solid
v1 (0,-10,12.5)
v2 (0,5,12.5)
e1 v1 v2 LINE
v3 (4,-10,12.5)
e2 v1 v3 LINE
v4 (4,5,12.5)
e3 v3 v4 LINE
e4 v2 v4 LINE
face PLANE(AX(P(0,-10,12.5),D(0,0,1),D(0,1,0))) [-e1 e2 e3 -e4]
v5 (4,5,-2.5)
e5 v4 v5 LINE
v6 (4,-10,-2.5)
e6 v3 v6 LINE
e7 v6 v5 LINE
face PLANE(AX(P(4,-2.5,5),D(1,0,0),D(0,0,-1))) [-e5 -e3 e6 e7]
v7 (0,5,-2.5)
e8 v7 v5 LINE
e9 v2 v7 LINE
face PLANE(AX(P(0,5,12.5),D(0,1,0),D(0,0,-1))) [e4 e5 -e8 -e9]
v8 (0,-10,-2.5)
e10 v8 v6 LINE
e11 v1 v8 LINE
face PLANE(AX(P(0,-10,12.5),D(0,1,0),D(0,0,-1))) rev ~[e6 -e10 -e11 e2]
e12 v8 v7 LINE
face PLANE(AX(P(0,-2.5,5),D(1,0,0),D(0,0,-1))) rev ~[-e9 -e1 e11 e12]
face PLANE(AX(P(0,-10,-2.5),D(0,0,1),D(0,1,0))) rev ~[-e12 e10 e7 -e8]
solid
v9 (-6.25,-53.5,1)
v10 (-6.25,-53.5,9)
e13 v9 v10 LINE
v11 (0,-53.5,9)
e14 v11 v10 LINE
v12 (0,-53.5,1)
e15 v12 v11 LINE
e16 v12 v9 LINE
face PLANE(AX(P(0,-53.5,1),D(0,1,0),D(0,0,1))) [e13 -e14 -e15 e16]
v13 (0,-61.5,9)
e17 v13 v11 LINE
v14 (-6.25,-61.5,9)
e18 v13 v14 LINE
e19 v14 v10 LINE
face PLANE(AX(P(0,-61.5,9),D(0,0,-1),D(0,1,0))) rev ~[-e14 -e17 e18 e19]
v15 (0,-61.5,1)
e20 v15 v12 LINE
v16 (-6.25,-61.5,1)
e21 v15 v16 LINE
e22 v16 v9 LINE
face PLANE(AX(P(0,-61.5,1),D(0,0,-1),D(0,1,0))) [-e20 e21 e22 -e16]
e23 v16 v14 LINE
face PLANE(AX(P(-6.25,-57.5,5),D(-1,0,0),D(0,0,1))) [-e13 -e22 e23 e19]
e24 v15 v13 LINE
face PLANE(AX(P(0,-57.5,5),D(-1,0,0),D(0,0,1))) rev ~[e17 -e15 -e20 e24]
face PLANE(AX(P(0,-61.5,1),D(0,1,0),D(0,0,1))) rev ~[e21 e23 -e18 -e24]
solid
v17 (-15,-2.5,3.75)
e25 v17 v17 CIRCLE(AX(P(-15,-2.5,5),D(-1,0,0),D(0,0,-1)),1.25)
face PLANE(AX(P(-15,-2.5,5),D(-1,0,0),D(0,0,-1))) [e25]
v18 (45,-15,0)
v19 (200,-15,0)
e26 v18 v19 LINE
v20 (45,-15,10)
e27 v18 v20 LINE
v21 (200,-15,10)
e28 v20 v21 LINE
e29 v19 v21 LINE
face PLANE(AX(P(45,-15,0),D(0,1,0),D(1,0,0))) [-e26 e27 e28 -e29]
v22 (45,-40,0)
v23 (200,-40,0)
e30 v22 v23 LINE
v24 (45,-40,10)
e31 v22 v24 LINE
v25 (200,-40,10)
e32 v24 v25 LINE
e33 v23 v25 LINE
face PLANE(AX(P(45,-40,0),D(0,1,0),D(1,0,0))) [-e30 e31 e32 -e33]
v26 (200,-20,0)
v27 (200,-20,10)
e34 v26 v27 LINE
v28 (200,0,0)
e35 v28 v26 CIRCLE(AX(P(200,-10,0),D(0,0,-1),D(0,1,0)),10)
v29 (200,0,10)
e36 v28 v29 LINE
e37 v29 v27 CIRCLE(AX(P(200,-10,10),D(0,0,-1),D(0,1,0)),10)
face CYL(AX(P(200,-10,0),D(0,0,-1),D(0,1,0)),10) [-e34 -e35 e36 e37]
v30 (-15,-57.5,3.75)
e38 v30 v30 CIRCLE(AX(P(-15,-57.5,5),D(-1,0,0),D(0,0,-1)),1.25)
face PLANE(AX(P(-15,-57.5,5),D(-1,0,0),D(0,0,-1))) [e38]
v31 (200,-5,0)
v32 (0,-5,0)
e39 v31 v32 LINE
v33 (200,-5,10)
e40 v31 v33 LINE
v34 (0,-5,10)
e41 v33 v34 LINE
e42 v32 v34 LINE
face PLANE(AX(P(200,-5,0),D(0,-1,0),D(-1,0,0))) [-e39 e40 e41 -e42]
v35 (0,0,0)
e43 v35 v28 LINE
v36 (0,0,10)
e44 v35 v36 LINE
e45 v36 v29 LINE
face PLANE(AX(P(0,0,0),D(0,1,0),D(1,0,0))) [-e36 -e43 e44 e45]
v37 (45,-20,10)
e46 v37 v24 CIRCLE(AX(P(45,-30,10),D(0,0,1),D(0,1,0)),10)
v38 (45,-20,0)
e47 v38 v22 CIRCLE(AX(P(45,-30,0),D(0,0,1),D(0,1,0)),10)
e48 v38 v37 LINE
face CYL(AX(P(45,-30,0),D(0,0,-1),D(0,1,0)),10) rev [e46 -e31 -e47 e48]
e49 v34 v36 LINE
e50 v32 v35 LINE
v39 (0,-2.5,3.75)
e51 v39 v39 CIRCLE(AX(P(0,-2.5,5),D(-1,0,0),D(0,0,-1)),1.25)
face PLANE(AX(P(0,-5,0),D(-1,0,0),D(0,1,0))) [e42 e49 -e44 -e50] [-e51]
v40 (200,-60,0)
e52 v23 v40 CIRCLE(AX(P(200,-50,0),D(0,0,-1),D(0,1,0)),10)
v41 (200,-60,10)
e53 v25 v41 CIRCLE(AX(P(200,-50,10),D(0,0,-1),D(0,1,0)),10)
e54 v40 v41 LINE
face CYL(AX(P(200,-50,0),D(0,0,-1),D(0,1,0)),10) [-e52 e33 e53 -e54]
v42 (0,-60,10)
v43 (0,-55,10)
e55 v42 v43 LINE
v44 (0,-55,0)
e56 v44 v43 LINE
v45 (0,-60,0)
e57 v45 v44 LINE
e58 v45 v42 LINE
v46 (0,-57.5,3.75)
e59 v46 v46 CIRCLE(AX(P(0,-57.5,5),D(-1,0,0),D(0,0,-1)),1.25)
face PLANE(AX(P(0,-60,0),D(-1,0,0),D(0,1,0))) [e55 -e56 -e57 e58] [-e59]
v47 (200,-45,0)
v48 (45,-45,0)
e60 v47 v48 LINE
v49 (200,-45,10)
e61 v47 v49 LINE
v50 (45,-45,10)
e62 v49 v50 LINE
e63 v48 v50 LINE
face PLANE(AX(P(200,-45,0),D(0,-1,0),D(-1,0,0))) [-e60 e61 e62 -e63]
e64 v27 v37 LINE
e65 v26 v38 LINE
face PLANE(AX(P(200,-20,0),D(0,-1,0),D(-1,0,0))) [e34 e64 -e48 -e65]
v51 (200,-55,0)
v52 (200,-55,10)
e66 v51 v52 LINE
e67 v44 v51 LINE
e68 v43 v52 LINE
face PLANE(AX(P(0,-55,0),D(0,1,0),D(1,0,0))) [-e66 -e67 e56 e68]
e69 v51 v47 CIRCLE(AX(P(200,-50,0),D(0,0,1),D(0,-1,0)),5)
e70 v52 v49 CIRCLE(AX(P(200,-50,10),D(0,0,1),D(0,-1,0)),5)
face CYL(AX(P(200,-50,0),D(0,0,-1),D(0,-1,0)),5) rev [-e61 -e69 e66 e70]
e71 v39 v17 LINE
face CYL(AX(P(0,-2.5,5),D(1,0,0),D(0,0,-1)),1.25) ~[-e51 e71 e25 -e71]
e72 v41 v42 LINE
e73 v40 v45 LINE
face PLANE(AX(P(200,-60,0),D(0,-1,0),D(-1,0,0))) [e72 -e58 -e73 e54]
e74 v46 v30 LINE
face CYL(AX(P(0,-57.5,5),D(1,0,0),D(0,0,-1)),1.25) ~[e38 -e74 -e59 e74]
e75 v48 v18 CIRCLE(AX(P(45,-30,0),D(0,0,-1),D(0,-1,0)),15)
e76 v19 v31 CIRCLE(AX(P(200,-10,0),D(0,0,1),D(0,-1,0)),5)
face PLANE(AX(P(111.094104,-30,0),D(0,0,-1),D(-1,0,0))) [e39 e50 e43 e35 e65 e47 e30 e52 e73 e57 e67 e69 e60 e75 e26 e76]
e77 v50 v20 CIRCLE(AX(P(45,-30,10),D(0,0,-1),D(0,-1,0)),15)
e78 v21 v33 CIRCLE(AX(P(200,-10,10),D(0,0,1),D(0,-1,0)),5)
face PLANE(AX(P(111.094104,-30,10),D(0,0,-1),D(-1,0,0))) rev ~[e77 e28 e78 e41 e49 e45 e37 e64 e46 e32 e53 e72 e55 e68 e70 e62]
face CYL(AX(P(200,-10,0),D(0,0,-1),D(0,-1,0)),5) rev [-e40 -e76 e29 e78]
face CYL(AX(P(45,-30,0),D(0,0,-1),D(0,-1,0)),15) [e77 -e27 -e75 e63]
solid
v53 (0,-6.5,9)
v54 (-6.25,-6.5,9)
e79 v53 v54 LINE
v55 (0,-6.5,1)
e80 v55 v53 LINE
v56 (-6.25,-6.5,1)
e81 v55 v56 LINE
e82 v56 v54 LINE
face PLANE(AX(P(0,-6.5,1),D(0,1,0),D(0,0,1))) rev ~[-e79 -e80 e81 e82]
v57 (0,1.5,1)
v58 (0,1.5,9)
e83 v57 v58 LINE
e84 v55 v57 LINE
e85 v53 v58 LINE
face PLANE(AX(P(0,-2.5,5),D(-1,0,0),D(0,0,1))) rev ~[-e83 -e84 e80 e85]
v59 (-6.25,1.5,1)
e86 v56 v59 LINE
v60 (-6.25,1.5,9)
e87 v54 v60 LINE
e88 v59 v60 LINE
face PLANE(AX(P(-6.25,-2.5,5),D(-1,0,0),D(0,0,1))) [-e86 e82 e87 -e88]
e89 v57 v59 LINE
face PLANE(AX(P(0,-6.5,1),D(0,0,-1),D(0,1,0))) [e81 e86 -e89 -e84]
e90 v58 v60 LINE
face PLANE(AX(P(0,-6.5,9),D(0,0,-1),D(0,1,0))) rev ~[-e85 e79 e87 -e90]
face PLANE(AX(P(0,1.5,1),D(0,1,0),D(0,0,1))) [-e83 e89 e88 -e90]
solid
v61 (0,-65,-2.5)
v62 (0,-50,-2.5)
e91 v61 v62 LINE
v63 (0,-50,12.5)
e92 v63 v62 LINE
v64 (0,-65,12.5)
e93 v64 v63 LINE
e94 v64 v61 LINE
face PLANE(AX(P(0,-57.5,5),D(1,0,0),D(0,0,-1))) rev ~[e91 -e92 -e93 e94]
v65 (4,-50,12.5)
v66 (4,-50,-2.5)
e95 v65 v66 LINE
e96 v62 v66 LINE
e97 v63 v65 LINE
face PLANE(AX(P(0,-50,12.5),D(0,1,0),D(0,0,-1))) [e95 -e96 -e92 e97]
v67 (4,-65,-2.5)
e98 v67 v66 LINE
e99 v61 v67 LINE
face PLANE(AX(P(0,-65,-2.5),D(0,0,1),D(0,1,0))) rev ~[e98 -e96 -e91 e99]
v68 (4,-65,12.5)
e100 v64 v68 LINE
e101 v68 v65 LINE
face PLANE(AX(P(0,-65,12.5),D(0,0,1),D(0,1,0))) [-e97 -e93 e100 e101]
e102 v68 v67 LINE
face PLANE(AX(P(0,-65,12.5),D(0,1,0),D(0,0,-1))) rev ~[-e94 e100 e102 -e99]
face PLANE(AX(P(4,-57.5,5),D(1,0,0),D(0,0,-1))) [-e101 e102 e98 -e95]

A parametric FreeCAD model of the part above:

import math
import FreeCAD as App
import Part
import Sketcher


def add_polygon(sketch, points):
    """Adds a closed chain of lines whose ends are joined by coincident constraints."""
    first, n = sketch.GeometryCount, len(points)
    for a, b in zip(points, points[1:] + points[:1]):
        sketch.addGeometry(Part.LineSegment(App.Vector(*a, 0), App.Vector(*b, 0)), False)
    for i in range(n):
        sketch.addConstraint(Sketcher.Constraint("Coincident", first + i, 2, first + (i + 1) % n, 1))

doc = App.newDocument("Part")
body = doc.addObject("PartDesign::Body", "Body")

# Sketch on XY plane
sketch1 = body.newObject("Sketcher::SketchObject", "Sketch")
sketch1.AttachmentSupport = (doc.getObject("XY_Plane"), [""])
sketch1.MapMode = "FlatFace"
sketch1.addGeometry([
    Part.LineSegment(App.Vector(200, 0, 0), App.Vector(0, 0, 0)),  # 0
    Part.LineSegment(App.Vector(0, 0, 0), App.Vector(0, -5, 0)),  # 1
    Part.LineSegment(App.Vector(0, -5, 0), App.Vector(200, -5, 0)),  # 2
    Part.ArcOfCircle(Part.Circle(App.Vector(200, -10, 0), App.Vector(0, 0, 1), 5), math.radians(-90), math.radians(90)),  # 3
    Part.LineSegment(App.Vector(200, -15, 0), App.Vector(45, -15, 0)),  # 4
    Part.ArcOfCircle(Part.Circle(App.Vector(45, -30, 0), App.Vector(0, 0, 1), 15), math.radians(90), math.radians(270)),  # 5
    Part.LineSegment(App.Vector(45, -45, 0), App.Vector(200, -45, 0)),  # 6
    Part.ArcOfCircle(Part.Circle(App.Vector(200, -50, 0), App.Vector(0, 0, 1), 5), math.radians(-90), math.radians(90)),  # 7
    Part.LineSegment(App.Vector(200, -55, 0), App.Vector(0, -55, 0)),  # 8
    Part.LineSegment(App.Vector(0, -55, 0), App.Vector(0, -60, 0)),  # 9
    Part.LineSegment(App.Vector(0, -60, 0), App.Vector(200, -60, 0)),  # 10
    Part.ArcOfCircle(Part.Circle(App.Vector(200, -50, 0), App.Vector(0, 0, 1), 10), math.radians(-90), math.radians(90)),  # 11
    Part.LineSegment(App.Vector(200, -40, 0), App.Vector(45, -40, 0)),  # 12
    Part.ArcOfCircle(Part.Circle(App.Vector(45, -30, 0), App.Vector(0, 0, 1), 10), math.radians(90), math.radians(270)),  # 13
    Part.LineSegment(App.Vector(45, -20, 0), App.Vector(200, -20, 0)),  # 14
    Part.ArcOfCircle(Part.Circle(App.Vector(200, -10, 0), App.Vector(0, 0, 1), 10), math.radians(-90), math.radians(90)),  # 15
], False)
sketch1.addConstraint([
    Sketcher.Constraint("Coincident", 0, 2, 1, 1),
    Sketcher.Constraint("Coincident", 1, 2, 2, 1),
    Sketcher.Constraint("Tangent", 2, 2, 3, 2),
    Sketcher.Constraint("Tangent", 3, 1, 4, 1),
    Sketcher.Constraint("Tangent", 4, 2, 5, 1),
    Sketcher.Constraint("Tangent", 5, 2, 6, 1),
    Sketcher.Constraint("Tangent", 6, 2, 7, 2),
    Sketcher.Constraint("Tangent", 7, 1, 8, 1),
    Sketcher.Constraint("Coincident", 8, 2, 9, 1),
    Sketcher.Constraint("Coincident", 9, 2, 10, 1),
    Sketcher.Constraint("Tangent", 10, 2, 11, 1),
    Sketcher.Constraint("Tangent", 11, 2, 12, 1),
    Sketcher.Constraint("Tangent", 12, 2, 13, 2),
    Sketcher.Constraint("Tangent", 13, 1, 14, 1),
    Sketcher.Constraint("Tangent", 14, 2, 15, 1),
    Sketcher.Constraint("Tangent", 15, 2, 0, 1),
    Sketcher.Constraint("Horizontal", 0),
    Sketcher.Constraint("Vertical", 1),
    Sketcher.Constraint("Horizontal", 2),
    Sketcher.Constraint("Horizontal", 4),
    Sketcher.Constraint("Horizontal", 6),
    Sketcher.Constraint("Horizontal", 8),
    Sketcher.Constraint("Vertical", 9),
    Sketcher.Constraint("Horizontal", 10),
    Sketcher.Constraint("Horizontal", 12),
    Sketcher.Constraint("Horizontal", 14),
    Sketcher.Constraint("Coincident", 0, 2, -1, 1),
    Sketcher.Constraint("Coincident", 11, 3, 7, 3),
    Sketcher.Constraint("Coincident", 13, 3, 5, 3),
    Sketcher.Constraint("Coincident", 15, 3, 3, 3),
    Sketcher.Constraint("Equal", 3, 7),
    Sketcher.Constraint("Equal", 11, 13),
    Sketcher.Constraint("PointOnObject", 8, 2, -2),
    Sketcher.Constraint("Vertical", 3, 3, 7, 3),
    Sketcher.Constraint("Radius", 3, 5.0),
    Sketcher.Constraint("Radius", 5, 15.0),
    Sketcher.Constraint("DistanceX", 0, 2, 0, 1, 200.0),
    Sketcher.Constraint("DistanceX", 4, 2, 4, 1, 155.0),
])
pad1 = body.newObject("PartDesign::Pad", "Pad")
pad1.Profile = sketch1
pad1.Length = 10

# Sketch on YZ plane
sketch2 = body.newObject("Sketcher::SketchObject", "Sketch001")
sketch2.AttachmentSupport = (doc.getObject("YZ_Plane"), [""])
sketch2.MapMode = "FlatFace"
sketch2.addGeometry(Part.Circle(App.Vector(-2.5, 5, 0), App.Vector(0, 0, 1), 1.2), False)
sketch2.addConstraint([
    Sketcher.Constraint("Diameter", 0, 2.5),
    Sketcher.Constraint("DistanceY", -1, 1, 0, 3, 5.0),
    Sketcher.Constraint("DistanceX", 0, 3, -1, 1, 2.5),
])
pad2 = body.newObject("PartDesign::Pad", "Pad001")
pad2.Profile = sketch2
pad2.Length = 15
pad2.Reversed = True

# Sketch on YZ plane
sketch3 = body.newObject("Sketcher::SketchObject", "Sketch002")
sketch3.AttachmentSupport = (doc.getObject("YZ_Plane"), [""])
sketch3.MapMode = "FlatFace"
sketch3.addGeometry(Part.Circle(App.Vector(-57.5, 5, 0), App.Vector(0, 0, 1), 1.2), False)
sketch3.addConstraint([
    Sketcher.Constraint("Diameter", 0, 2.5),
    Sketcher.Constraint("DistanceY", -1, 1, 0, 3, 5.0),
    Sketcher.Constraint("DistanceX", 0, 3, -1, 1, 57.5),
])
pad3 = body.newObject("PartDesign::Pad", "Pad002")
pad3.Profile = sketch3
pad3.Length = 15
pad3.Reversed = True
body2 = doc.addObject("PartDesign::Body", "Body001")

# Sketch on YZ plane
sketch4 = body2.newObject("Sketcher::SketchObject", "Sketch003")
sketch4.AttachmentSupport = (doc.getObject("YZ_Plane001"), [""])
sketch4.MapMode = "FlatFace"
add_polygon(sketch4, [(-50, 12), (-65, 12), (-65, -2), (-50, -2)])  # lines 0-3
sketch4.addConstraint([
    Sketcher.Constraint("Horizontal", 0),
    Sketcher.Constraint("Vertical", 1),
    Sketcher.Constraint("Horizontal", 2),
    Sketcher.Constraint("Vertical", 3),
    Sketcher.Constraint("Equal", 2, 1),
    Sketcher.Constraint("DistanceX", 0, 2, 0, 1, 15.0),
    Sketcher.Constraint("DistanceX", 0, 2, -1, 1, 65.0),
    Sketcher.Constraint("DistanceY", -1, 1, 0, 2, 12.5),
])
pad4 = body2.newObject("PartDesign::Pad", "Pad003")
pad4.Profile = sketch4
pad4.Length = 4
body3 = doc.addObject("PartDesign::Body", "Body002")

# Sketch on YZ plane
sketch5 = body3.newObject("Sketcher::SketchObject", "Sketch004")
sketch5.AttachmentSupport = (doc.getObject("YZ_Plane002"), [""])
sketch5.MapMode = "FlatFace"
add_polygon(sketch5, [(5, 12), (-10, 12), (-10, -2), (5, -2)])  # lines 0-3
sketch5.addConstraint([
    Sketcher.Constraint("Horizontal", 0),
    Sketcher.Constraint("Vertical", 1),
    Sketcher.Constraint("Horizontal", 2),
    Sketcher.Constraint("Vertical", 3),
    Sketcher.Constraint("Equal", 2, 1),
    Sketcher.Constraint("DistanceX", 0, 2, 0, 1, 15.0),
    Sketcher.Constraint("DistanceX", 0, 2, -1, 1, 10.0),
    Sketcher.Constraint("DistanceY", -1, 1, 0, 2, 12.5),
])
pad5 = body3.newObject("PartDesign::Pad", "Pad004")
pad5.Profile = sketch5
pad5.Length = 4
body4 = doc.addObject("PartDesign::Body", "Body003")

# Sketch on YZ plane
sketch6 = body4.newObject("Sketcher::SketchObject", "Sketch005")
sketch6.AttachmentSupport = (doc.getObject("YZ_Plane003"), [""])
sketch6.MapMode = "FlatFace"
add_polygon(sketch6, [(-54, 1), (-62, 1), (-62, 9), (-54, 9)])  # lines 0-3
sketch6.addConstraint([
    Sketcher.Constraint("Horizontal", 0),
    Sketcher.Constraint("Vertical", 1),
    Sketcher.Constraint("Horizontal", 2),
    Sketcher.Constraint("Vertical", 3),
    Sketcher.Constraint("Equal", 2, 1),
    Sketcher.Constraint("DistanceX", 0, 2, 0, 1, 8.0),
    Sketcher.Constraint("DistanceY", -1, 1, 0, 2, 1.0),
    Sketcher.Constraint("DistanceX", 0, 2, -1, 1, 61.5),
])
pad6 = body4.newObject("PartDesign::Pad", "Pad005")
pad6.Profile = sketch6
pad6.Length = 6.25
pad6.Reversed = True
body5 = doc.addObject("PartDesign::Body", "Body004")

# Sketch on YZ plane
sketch7 = body5.newObject("Sketcher::SketchObject", "Sketch006")
sketch7.AttachmentSupport = (doc.getObject("YZ_Plane004"), [""])
sketch7.MapMode = "FlatFace"
add_polygon(sketch7, [(2, 1), (-6, 1), (-6, 9), (2, 9)])  # lines 0-3
sketch7.addConstraint([
    Sketcher.Constraint("Horizontal", 0),
    Sketcher.Constraint("Vertical", 1),
    Sketcher.Constraint("Horizontal", 2),
    Sketcher.Constraint("Vertical", 3),
    Sketcher.Constraint("Equal", 2, 1),
    Sketcher.Constraint("DistanceX", 0, 2, 0, 1, 8.0),
    Sketcher.Constraint("DistanceY", -1, 1, 0, 2, 1.0),
    Sketcher.Constraint("DistanceX", 0, 2, -1, 1, 6.5),
])
pad7 = body5.newObject("PartDesign::Pad", "Pad006")
pad7.Profile = sketch7
pad7.Length = 6.25
pad7.Reversed = True

doc.recompute()
